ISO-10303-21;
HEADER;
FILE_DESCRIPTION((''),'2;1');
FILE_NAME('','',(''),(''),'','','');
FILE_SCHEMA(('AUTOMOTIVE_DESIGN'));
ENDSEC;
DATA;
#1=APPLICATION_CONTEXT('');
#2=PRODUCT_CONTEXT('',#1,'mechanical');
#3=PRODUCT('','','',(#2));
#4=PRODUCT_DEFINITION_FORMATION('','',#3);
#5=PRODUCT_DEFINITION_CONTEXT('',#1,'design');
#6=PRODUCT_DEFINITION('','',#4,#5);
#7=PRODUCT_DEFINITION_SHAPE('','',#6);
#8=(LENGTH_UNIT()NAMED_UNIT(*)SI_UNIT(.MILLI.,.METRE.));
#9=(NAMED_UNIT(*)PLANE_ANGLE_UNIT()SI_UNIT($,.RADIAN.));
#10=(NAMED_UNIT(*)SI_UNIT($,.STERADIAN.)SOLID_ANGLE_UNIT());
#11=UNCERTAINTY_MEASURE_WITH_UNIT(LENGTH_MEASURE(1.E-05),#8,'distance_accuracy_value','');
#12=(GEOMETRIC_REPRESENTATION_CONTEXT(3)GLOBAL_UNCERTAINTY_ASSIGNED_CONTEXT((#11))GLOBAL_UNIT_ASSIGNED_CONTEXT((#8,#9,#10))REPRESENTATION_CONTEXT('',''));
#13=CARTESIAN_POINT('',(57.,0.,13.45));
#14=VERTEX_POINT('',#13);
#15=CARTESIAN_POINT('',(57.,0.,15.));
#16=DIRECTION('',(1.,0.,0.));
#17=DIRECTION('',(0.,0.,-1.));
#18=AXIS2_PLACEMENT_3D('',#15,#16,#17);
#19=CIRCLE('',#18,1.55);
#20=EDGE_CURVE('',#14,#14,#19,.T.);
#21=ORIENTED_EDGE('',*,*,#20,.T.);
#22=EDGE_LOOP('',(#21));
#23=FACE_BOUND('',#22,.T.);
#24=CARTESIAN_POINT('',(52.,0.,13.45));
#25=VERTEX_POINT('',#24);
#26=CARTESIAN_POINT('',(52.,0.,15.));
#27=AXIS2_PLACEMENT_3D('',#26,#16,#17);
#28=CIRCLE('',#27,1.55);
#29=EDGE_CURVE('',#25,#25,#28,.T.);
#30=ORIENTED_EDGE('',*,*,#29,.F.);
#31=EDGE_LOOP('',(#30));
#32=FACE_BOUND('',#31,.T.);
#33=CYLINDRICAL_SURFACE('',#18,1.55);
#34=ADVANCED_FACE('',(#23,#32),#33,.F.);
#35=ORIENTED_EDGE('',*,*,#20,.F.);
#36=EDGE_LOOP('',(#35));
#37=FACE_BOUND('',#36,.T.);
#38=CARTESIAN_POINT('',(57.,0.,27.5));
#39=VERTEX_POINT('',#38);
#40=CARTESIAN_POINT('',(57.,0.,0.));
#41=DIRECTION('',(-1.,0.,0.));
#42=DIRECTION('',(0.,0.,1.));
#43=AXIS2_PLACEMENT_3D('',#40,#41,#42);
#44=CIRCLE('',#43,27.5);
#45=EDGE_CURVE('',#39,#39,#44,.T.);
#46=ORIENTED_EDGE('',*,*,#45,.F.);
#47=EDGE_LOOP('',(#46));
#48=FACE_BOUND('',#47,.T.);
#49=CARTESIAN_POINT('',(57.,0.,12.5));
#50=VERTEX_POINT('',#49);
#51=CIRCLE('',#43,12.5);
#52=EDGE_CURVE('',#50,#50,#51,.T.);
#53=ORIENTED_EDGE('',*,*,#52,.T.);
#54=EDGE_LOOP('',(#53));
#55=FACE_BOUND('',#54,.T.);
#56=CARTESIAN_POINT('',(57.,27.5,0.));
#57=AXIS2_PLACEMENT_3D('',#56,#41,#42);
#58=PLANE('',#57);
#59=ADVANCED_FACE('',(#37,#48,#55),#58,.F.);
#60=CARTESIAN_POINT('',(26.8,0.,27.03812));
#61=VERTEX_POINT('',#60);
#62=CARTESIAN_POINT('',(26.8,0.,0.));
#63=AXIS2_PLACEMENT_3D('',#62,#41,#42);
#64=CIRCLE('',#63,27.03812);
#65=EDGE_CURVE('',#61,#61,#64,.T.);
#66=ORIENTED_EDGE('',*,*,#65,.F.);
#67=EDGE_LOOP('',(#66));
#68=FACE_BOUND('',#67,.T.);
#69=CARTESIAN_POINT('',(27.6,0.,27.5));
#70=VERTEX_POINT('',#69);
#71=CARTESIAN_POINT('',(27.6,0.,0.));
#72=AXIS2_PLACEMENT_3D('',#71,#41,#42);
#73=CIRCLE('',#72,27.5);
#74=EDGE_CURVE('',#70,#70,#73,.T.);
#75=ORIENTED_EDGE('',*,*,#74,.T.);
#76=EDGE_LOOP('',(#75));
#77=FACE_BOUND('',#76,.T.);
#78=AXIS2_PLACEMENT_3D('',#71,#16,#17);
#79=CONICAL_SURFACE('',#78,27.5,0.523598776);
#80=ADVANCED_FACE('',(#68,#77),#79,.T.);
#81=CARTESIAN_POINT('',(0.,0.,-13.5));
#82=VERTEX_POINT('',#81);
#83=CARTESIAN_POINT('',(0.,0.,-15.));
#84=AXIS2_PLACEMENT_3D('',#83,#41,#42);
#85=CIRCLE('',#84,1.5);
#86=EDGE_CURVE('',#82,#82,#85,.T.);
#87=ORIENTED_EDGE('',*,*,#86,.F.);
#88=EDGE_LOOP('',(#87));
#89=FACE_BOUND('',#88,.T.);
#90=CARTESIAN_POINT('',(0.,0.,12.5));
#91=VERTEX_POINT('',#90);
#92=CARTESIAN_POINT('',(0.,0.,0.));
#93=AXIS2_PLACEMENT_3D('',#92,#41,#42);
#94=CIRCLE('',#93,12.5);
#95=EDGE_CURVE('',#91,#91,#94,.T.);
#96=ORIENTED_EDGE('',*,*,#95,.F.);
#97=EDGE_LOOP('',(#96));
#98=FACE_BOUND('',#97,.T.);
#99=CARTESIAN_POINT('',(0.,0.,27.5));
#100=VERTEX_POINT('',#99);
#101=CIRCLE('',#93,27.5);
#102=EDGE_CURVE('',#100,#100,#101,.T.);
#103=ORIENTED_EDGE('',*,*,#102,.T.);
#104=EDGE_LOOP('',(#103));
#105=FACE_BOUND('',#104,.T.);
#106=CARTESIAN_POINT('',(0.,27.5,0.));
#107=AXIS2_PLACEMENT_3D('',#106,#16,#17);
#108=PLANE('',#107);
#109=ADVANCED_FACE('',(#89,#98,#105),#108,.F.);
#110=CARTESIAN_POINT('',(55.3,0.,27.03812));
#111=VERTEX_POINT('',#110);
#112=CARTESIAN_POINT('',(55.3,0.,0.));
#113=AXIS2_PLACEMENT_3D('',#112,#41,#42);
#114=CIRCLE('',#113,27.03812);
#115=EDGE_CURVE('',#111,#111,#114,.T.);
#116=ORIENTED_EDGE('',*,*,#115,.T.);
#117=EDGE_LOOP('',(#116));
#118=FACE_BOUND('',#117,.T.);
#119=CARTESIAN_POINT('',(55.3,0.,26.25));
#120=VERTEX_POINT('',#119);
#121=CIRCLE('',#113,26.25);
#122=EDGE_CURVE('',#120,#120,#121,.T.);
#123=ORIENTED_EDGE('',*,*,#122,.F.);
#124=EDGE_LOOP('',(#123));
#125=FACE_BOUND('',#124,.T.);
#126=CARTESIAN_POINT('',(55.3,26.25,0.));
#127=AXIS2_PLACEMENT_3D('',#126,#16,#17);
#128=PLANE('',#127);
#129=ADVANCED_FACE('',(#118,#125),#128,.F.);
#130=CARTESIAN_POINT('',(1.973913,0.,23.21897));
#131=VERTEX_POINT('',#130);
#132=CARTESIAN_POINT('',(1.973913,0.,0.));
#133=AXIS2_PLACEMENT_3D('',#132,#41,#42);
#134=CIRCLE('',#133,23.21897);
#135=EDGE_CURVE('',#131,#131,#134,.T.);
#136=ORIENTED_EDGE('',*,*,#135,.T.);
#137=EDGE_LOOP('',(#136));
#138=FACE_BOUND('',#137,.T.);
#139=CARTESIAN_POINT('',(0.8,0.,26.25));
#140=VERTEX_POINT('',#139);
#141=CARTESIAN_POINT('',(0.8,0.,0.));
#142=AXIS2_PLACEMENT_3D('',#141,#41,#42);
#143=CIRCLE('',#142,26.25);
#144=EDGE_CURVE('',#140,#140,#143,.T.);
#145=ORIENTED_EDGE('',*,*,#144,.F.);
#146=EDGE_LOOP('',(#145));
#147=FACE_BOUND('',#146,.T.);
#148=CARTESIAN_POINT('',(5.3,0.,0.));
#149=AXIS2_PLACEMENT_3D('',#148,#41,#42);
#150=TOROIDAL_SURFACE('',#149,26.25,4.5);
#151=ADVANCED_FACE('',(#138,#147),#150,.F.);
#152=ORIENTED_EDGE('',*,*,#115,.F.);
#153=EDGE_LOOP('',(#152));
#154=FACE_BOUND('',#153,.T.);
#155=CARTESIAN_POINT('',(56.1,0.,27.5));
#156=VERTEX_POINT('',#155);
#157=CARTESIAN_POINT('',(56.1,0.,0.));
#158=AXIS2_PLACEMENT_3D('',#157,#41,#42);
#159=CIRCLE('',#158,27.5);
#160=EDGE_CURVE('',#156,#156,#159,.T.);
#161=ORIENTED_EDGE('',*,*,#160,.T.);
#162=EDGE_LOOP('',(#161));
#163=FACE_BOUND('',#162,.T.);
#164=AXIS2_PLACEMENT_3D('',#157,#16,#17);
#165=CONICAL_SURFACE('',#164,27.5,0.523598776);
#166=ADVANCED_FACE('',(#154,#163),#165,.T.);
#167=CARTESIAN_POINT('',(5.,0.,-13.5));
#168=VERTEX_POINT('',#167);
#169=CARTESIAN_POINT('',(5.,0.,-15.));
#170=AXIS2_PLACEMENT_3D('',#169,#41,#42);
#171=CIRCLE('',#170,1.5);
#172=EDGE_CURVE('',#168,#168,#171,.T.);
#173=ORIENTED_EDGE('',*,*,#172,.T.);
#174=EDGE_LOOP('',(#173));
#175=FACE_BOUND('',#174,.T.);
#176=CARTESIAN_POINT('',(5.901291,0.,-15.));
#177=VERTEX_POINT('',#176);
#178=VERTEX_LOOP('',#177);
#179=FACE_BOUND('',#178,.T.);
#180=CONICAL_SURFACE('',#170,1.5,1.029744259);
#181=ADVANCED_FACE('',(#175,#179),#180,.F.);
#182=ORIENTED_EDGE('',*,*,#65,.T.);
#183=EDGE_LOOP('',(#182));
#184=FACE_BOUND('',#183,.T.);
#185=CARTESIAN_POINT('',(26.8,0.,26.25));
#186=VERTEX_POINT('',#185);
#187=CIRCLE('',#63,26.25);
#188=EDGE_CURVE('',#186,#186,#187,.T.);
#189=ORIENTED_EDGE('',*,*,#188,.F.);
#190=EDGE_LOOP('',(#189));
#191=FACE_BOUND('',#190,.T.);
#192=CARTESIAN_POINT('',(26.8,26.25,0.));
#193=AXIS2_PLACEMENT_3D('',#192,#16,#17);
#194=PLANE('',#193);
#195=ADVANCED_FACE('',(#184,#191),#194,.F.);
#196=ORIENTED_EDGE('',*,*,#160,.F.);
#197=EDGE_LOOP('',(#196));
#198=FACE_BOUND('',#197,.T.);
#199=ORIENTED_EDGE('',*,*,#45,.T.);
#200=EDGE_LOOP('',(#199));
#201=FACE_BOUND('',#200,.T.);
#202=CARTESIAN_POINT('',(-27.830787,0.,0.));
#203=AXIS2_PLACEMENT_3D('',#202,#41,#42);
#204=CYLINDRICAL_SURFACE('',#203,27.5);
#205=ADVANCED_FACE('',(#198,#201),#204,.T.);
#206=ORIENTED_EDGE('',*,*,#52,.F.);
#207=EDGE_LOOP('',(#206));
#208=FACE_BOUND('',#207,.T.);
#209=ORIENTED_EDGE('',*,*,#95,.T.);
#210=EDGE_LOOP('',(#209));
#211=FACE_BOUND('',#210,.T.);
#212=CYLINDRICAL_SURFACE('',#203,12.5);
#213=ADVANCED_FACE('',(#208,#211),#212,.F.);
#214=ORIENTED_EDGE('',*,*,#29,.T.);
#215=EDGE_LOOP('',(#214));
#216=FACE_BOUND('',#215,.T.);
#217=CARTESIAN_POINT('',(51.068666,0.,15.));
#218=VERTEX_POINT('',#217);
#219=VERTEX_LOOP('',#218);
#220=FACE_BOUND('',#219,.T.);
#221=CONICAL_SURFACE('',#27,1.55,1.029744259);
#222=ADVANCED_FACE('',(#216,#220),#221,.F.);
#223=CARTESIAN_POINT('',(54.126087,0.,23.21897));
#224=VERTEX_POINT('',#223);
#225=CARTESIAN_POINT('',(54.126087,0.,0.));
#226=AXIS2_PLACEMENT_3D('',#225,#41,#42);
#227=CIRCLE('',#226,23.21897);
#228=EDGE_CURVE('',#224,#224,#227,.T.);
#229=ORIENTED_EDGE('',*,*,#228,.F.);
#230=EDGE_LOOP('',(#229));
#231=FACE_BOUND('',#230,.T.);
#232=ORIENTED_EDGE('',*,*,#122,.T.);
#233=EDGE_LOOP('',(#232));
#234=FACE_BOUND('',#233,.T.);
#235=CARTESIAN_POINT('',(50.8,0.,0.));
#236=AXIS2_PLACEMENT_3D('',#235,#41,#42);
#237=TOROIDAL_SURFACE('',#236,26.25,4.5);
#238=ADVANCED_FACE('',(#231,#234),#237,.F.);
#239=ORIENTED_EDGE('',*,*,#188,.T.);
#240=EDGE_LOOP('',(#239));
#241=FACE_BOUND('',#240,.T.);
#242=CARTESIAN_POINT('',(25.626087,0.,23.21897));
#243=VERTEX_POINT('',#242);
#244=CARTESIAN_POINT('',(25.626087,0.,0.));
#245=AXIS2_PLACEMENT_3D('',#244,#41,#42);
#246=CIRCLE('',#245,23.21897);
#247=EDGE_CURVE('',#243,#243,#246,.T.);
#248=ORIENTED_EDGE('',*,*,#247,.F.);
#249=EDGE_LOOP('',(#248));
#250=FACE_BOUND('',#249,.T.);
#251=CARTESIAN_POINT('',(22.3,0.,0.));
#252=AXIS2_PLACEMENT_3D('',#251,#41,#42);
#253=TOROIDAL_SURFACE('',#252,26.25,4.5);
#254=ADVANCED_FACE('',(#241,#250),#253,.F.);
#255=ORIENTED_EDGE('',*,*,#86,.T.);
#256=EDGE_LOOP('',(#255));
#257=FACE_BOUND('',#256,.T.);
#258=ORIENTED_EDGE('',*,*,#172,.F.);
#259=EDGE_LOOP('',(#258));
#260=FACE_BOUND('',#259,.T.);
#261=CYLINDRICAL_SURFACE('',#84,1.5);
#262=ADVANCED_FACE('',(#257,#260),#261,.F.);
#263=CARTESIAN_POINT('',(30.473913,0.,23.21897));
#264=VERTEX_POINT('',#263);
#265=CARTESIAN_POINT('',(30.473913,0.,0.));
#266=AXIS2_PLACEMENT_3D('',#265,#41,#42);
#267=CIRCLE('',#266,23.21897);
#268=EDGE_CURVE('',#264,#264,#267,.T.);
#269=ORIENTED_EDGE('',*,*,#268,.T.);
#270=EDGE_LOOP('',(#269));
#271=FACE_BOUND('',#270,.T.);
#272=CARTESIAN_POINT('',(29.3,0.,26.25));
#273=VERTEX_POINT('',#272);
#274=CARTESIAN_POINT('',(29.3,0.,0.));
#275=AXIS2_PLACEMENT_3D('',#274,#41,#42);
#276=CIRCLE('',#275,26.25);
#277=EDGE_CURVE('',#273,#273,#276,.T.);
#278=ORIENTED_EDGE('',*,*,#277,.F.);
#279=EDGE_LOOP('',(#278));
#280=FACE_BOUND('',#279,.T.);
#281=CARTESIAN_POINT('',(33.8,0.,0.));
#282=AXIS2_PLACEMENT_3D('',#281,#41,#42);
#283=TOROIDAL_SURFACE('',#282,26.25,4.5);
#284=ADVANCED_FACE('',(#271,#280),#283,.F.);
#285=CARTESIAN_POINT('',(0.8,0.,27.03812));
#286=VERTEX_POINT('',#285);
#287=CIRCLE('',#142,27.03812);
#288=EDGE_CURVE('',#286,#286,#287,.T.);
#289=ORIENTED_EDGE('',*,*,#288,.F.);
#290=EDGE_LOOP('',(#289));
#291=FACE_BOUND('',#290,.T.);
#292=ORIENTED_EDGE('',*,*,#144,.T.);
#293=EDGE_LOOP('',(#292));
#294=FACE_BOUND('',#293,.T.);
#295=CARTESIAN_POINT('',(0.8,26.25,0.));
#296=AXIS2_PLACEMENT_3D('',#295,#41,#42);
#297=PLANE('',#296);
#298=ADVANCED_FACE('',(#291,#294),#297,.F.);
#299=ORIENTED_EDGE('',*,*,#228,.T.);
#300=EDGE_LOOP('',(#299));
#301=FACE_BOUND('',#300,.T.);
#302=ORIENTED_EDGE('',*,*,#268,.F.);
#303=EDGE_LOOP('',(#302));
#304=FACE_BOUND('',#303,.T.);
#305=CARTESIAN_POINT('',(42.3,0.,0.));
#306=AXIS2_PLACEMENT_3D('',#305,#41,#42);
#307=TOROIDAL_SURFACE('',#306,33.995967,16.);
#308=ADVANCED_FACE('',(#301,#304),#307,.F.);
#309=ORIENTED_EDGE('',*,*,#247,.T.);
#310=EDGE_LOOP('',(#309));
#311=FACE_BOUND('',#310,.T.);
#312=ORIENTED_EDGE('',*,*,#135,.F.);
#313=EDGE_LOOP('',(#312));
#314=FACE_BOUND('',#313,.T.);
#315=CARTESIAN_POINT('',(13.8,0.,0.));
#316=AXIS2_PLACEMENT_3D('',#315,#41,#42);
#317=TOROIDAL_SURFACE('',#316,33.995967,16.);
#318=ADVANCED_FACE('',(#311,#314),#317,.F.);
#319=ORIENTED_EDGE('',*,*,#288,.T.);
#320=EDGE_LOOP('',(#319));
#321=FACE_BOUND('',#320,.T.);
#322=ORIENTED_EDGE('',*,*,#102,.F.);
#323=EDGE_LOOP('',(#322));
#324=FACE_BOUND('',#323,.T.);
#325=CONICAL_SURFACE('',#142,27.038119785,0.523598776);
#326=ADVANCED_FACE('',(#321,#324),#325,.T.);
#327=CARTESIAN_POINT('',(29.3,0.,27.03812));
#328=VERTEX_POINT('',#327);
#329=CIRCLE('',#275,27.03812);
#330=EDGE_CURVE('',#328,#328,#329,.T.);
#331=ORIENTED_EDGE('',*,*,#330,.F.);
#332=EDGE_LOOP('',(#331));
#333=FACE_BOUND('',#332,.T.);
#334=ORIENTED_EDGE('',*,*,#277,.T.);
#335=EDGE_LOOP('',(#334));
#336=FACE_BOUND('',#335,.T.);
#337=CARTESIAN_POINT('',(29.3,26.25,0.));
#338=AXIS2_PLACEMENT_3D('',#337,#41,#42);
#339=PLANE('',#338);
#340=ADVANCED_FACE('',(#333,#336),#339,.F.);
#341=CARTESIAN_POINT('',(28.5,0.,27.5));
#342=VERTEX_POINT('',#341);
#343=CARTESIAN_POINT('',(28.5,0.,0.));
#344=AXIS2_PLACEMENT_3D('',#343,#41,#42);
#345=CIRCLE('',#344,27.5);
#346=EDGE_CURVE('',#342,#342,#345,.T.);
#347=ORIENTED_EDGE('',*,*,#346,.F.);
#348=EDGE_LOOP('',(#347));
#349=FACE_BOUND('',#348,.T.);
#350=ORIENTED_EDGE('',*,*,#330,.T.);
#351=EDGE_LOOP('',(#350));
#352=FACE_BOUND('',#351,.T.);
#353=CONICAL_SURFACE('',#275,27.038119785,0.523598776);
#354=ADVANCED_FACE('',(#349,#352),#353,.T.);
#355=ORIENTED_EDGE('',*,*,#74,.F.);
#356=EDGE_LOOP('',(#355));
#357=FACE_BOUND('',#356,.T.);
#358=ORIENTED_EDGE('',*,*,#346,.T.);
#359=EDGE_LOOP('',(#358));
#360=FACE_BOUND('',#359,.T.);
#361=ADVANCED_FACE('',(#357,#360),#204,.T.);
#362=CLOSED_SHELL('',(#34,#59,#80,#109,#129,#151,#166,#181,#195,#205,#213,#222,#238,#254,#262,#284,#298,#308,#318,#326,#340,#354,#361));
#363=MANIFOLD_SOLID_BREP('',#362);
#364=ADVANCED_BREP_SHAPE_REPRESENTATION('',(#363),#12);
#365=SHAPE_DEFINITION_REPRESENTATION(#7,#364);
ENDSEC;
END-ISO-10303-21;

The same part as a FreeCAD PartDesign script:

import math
import FreeCAD as App
import Part
import Sketcher
from FreeCAD import Vector
Q = App.Units.Quantity

doc = App.newDocument("Part")
body = doc.addObject("PartDesign::Body", "Body")

sketch1 = doc.addObject("Sketcher::SketchObject", "Sketch")
body.addObject(sketch1)
sketch1.AttachmentSupport = (doc.XY_Plane, [""])
sketch1.MapMode = "FlatFace"
sketch1.addGeometry(Part.LineSegment(Vector(0, 12.5, 0), Vector(57, 12.5, 0)), False)
sketch1.addGeometry(Part.LineSegment(Vector(57, 12.5, 0), Vector(57, 27.5, 0)), False)
sketch1.addGeometry(Part.LineSegment(Vector(57, 27.5, 0), Vector(56.1, 27.5, 0)), False)
sketch1.addGeometry(Part.LineSegment(Vector(56.1, 27.5, 0), Vector(55.3, 27, 0)), False)
sketch1.addGeometry(Part.LineSegment(Vector(55.3, 27, 0), Vector(55.3, 26.2, 0)), False)
sketch1.addGeometry(Part.ArcOfCircle(Part.Circle(Vector(50.8, 26.2, 0), Vector(0, 0, 1), 4.5), math.radians(-42), math.radians(0)), False)
sketch1.addGeometry(Part.ArcOfCircle(Part.Circle(Vector(42.3, 34, 0), Vector(0, 0, 1), 16), math.radians(-91), math.radians(-42)), False)
sketch1.addGeometry(Part.ArcOfCircle(Part.Circle(Vector(42.3, 34, 0), Vector(0, 0, 1), 16), math.radians(-138), math.radians(-91)), False)
sketch1.addGeometry(Part.ArcOfCircle(Part.Circle(Vector(33.8, 26.2, 0), Vector(0, 0, 1), 4.5), math.radians(180), math.radians(222)), False)
sketch1.addGeometry(Part.LineSegment(Vector(29.3, 26.2, 0), Vector(29.3, 27, 0)), False)
sketch1.addGeometry(Part.LineSegment(Vector(29.3, 27, 0), Vector(28.5, 27.5, 0)), False)
sketch1.addGeometry(Part.LineSegment(Vector(28.5, 27.5, 0), Vector(27.6, 27.5, 0)), False)
sketch1.addGeometry(Part.LineSegment(Vector(27.6, 27.5, 0), Vector(26.8, 27, 0)), False)
sketch1.addGeometry(Part.LineSegment(Vector(26.8, 27, 0), Vector(26.8, 26.2, 0)), False)
sketch1.addGeometry(Part.ArcOfCircle(Part.Circle(Vector(22.3, 26.2, 0), Vector(0, 0, 1), 4.5), math.radians(-42), math.radians(0)), False)
sketch1.addGeometry(Part.ArcOfCircle(Part.Circle(Vector(13.8, 34, 0), Vector(0, 0, 1), 16), math.radians(-91), math.radians(-42)), False)
sketch1.addGeometry(Part.ArcOfCircle(Part.Circle(Vector(13.8, 34, 0), Vector(0, 0, 1), 16), math.radians(-138), math.radians(-91)), False)
sketch1.addGeometry(Part.ArcOfCircle(Part.Circle(Vector(5.3, 26.2, 0), Vector(0, 0, 1), 4.5), math.radians(180), math.radians(222)), False)
sketch1.addGeometry(Part.LineSegment(Vector(0.8, 26.2, 0), Vector(0.8, 27, 0)), False)
sketch1.addGeometry(Part.LineSegment(Vector(0.8, 27, 0), Vector(0, 27.5, 0)), False)
sketch1.addGeometry(Part.LineSegment(Vector(0, 27.5, 0), Vector(0, 12.5, 0)), False)
sketch1.addConstraint(Sketcher.Constraint("Coincident", 0, 2, 1, 1))
sketch1.addConstraint(Sketcher.Constraint("Coincident", 1, 2, 2, 1))
sketch1.addConstraint(Sketcher.Constraint("Coincident", 2, 2, 3, 1))
sketch1.addConstraint(Sketcher.Constraint("Coincident", 3, 2, 4, 1))
sketch1.addConstraint(Sketcher.Constraint("Tangent", 4, 2, 5, 2))
sketch1.addConstraint(Sketcher.Constraint("Tangent", 5, 1, 6, 2))
sketch1.addConstraint(Sketcher.Constraint("Tangent", 6, 1, 7, 2))
sketch1.addConstraint(Sketcher.Constraint("Tangent", 7, 1, 8, 2))
sketch1.addConstraint(Sketcher.Constraint("Tangent", 8, 1, 9, 1))
sketch1.addConstraint(Sketcher.Constraint("Coincident", 9, 2, 10, 1))
sketch1.addConstraint(Sketcher.Constraint("Coincident", 10, 2, 11, 1))
sketch1.addConstraint(Sketcher.Constraint("Coincident", 11, 2, 12, 1))
sketch1.addConstraint(Sketcher.Constraint("Coincident", 12, 2, 13, 1))
sketch1.addConstraint(Sketcher.Constraint("Tangent", 13, 2, 14, 2))
sketch1.addConstraint(Sketcher.Constraint("Tangent", 14, 1, 15, 2))
sketch1.addConstraint(Sketcher.Constraint("Tangent", 15, 1, 16, 2))
sketch1.addConstraint(Sketcher.Constraint("Tangent", 16, 1, 17, 2))
sketch1.addConstraint(Sketcher.Constraint("Tangent", 17, 1, 18, 1))
sketch1.addConstraint(Sketcher.Constraint("Coincident", 18, 2, 19, 1))
sketch1.addConstraint(Sketcher.Constraint("Coincident", 19, 2, 20, 1))
sketch1.addConstraint(Sketcher.Constraint("Coincident", 20, 2, 0, 1))
sketch1.addConstraint(Sketcher.Constraint("Horizontal", 0))
sketch1.addConstraint(Sketcher.Constraint("Vertical", 1))
sketch1.addConstraint(Sketcher.Constraint("Horizontal", 2))
sketch1.addConstraint(Sketcher.Constraint("Vertical", 4))
sketch1.addConstraint(Sketcher.Constraint("Vertical", 9))
sketch1.addConstraint(Sketcher.Constraint("Horizontal", 11))
sketch1.addConstraint(Sketcher.Constraint("Vertical", 13))
sketch1.addConstraint(Sketcher.Constraint("Vertical", 18))
sketch1.addConstraint(Sketcher.Constraint("Vertical", 20))
sketch1.addConstraint(Sketcher.Constraint("Equal", 6, 7))
sketch1.addConstraint(Sketcher.Constraint("Equal", 5, 8))
sketch1.addConstraint(Sketcher.Constraint("Equal", 8, 14))
sketch1.addConstraint(Sketcher.Constraint("Equal", 7, 15))
sketch1.addConstraint(Sketcher.Constraint("Equal", 15, 16))
sketch1.addConstraint(Sketcher.Constraint("Equal", 14, 17))
sketch1.addConstraint(Sketcher.Constraint("PointOnObject", 19, 2, -2))
sketch1.addConstraint(Sketcher.Constraint("Parallel", 3, 12))
sketch1.addConstraint(Sketcher.Constraint("Parallel", 10, 19))
sketch1.addConstraint(Sketcher.Constraint("Horizontal", 5, 3, 8, 3))
sketch1.addConstraint(Sketcher.Constraint("Horizontal", 8, 3, 14, 3))
sketch1.addConstraint(Sketcher.Constraint("Horizontal", 7, 3, 15, 3))
sketch1.addConstraint(Sketcher.Constraint("Horizontal", 14, 3, 17, 3))
sketch1.addConstraint(Sketcher.Constraint("Horizontal", 3, 2, 9, 2))
sketch1.addConstraint(Sketcher.Constraint("Horizontal", 2, 2, 10, 2))
sketch1.addConstraint(Sketcher.Constraint("Horizontal", 9, 2, 12, 2))
sketch1.addConstraint(Sketcher.Constraint("Horizontal", 6, 1, 15, 1))
sketch1.addConstraint(Sketcher.Constraint("Horizontal", 12, 2, 18, 2))
sketch1.addConstraint(Sketcher.Constraint("Horizontal", 11, 2, 19, 2))
sketch1.addConstraint(Sketcher.Constraint("Equal", 2, 11))
sketch1.addConstraint(Sketcher.Constraint("Equal", 3, 10))
sketch1.addConstraint(Sketcher.Constraint("Radius", 6, Q("16 mm")))
sketch1.addConstraint(Sketcher.Constraint("Radius", 5, Q("4.5 mm")))
sketch1.addConstraint(Sketcher.Constraint("DistanceX", 0, 1, 0, 2, Q("57 mm")))
sketch1.addConstraint(Sketcher.Constraint("DistanceY", 1, 1, 1, 2, Q("15 mm")))
sketch1.addConstraint(Sketcher.Constraint("Angle", 3, Q("-150 deg")))
sketch1.addConstraint(Sketcher.Constraint("DistanceX", 2, 2, 2, 1, Q("0.9 mm")))
sketch1.addConstraint(Sketcher.Constraint("DistanceY", -1, 1, 6, 1, Q("18 mm")))
sketch1.addConstraint(Sketcher.Constraint("DistanceX", 8, 3, 5, 3, Q("17 mm")))
sketch1.addConstraint(Sketcher.Constraint("DistanceY", -1, 1, 0, 2, Q("12.5 mm")))
sketch1.addConstraint(Sketcher.Constraint("DistanceY", -1, 1, 5, 3, Q("26.25 mm")))
revolution = doc.addObject("PartDesign::Revolution", "Revolution")
body.addObject(revolution)
revolution.Profile = sketch1
revolution.ReferenceAxis = (sketch1, ["H_Axis"])
revolution.Angle = 360

sketch2 = doc.addObject("Sketcher::SketchObject", "Sketch001")
body.addObject(sketch2)
sketch2.AttachmentSupport = (doc.YZ_Plane, [""])
sketch2.MapMode = "FlatFace"
sketch2.addGeometry(Part.Circle(Vector(0, -15, 0), Vector(0, 0, 1), 1.5), False)
sketch2.addConstraint(Sketcher.Constraint("PointOnObject", 0, 3, -2))
sketch2.addConstraint(Sketcher.Constraint("Diameter", 0, Q("3 mm")))
sketch2.addConstraint(Sketcher.Constraint("DistanceY", 0, 3, -1, 1, Q("15 mm")))
doc.recompute()
hole = doc.addObject("PartDesign::Hole", "Hole")
body.addObject(hole)
hole.Profile = sketch2
hole.ThreadType = "None"
hole.Diameter = 3
hole.DepthType = "Dimension"
hole.Depth = 5
hole.DrillPoint = "Angled"
hole.DrillPointAngle = 118
hole.Reversed = True

sketch3 = doc.addObject("Sketcher::SketchObject", "Sketch002")
body.addObject(sketch3)
sketch3.AttachmentSupport = (doc.YZ_Plane, [""])
sketch3.MapMode = "FlatFace"
sketch3.AttachmentOffset = App.Placement(Vector(0, 0, 57), App.Rotation())
sketch3.addGeometry(Part.Circle(Vector(0, 15, 0), Vector(0, 0, 1), 1.6), False)
sketch3.addConstraint(Sketcher.Constraint("PointOnObject", 0, 3, -2))
sketch3.addConstraint(Sketcher.Constraint("Diameter", 0, Q("3.1 mm")))
sketch3.addConstraint(Sketcher.Constraint("DistanceY", -1, 1, 0, 3, Q("15 mm")))
doc.recompute()
hole2 = doc.addObject("PartDesign::Hole", "Hole001")
body.addObject(hole2)
hole2.Profile = sketch3
hole2.ThreadType = "None"
hole2.Diameter = 3.1
hole2.DepthType = "Dimension"
hole2.Depth = 5
hole2.DrillPoint = "Angled"
hole2.DrillPointAngle = 118

doc.recompute()
